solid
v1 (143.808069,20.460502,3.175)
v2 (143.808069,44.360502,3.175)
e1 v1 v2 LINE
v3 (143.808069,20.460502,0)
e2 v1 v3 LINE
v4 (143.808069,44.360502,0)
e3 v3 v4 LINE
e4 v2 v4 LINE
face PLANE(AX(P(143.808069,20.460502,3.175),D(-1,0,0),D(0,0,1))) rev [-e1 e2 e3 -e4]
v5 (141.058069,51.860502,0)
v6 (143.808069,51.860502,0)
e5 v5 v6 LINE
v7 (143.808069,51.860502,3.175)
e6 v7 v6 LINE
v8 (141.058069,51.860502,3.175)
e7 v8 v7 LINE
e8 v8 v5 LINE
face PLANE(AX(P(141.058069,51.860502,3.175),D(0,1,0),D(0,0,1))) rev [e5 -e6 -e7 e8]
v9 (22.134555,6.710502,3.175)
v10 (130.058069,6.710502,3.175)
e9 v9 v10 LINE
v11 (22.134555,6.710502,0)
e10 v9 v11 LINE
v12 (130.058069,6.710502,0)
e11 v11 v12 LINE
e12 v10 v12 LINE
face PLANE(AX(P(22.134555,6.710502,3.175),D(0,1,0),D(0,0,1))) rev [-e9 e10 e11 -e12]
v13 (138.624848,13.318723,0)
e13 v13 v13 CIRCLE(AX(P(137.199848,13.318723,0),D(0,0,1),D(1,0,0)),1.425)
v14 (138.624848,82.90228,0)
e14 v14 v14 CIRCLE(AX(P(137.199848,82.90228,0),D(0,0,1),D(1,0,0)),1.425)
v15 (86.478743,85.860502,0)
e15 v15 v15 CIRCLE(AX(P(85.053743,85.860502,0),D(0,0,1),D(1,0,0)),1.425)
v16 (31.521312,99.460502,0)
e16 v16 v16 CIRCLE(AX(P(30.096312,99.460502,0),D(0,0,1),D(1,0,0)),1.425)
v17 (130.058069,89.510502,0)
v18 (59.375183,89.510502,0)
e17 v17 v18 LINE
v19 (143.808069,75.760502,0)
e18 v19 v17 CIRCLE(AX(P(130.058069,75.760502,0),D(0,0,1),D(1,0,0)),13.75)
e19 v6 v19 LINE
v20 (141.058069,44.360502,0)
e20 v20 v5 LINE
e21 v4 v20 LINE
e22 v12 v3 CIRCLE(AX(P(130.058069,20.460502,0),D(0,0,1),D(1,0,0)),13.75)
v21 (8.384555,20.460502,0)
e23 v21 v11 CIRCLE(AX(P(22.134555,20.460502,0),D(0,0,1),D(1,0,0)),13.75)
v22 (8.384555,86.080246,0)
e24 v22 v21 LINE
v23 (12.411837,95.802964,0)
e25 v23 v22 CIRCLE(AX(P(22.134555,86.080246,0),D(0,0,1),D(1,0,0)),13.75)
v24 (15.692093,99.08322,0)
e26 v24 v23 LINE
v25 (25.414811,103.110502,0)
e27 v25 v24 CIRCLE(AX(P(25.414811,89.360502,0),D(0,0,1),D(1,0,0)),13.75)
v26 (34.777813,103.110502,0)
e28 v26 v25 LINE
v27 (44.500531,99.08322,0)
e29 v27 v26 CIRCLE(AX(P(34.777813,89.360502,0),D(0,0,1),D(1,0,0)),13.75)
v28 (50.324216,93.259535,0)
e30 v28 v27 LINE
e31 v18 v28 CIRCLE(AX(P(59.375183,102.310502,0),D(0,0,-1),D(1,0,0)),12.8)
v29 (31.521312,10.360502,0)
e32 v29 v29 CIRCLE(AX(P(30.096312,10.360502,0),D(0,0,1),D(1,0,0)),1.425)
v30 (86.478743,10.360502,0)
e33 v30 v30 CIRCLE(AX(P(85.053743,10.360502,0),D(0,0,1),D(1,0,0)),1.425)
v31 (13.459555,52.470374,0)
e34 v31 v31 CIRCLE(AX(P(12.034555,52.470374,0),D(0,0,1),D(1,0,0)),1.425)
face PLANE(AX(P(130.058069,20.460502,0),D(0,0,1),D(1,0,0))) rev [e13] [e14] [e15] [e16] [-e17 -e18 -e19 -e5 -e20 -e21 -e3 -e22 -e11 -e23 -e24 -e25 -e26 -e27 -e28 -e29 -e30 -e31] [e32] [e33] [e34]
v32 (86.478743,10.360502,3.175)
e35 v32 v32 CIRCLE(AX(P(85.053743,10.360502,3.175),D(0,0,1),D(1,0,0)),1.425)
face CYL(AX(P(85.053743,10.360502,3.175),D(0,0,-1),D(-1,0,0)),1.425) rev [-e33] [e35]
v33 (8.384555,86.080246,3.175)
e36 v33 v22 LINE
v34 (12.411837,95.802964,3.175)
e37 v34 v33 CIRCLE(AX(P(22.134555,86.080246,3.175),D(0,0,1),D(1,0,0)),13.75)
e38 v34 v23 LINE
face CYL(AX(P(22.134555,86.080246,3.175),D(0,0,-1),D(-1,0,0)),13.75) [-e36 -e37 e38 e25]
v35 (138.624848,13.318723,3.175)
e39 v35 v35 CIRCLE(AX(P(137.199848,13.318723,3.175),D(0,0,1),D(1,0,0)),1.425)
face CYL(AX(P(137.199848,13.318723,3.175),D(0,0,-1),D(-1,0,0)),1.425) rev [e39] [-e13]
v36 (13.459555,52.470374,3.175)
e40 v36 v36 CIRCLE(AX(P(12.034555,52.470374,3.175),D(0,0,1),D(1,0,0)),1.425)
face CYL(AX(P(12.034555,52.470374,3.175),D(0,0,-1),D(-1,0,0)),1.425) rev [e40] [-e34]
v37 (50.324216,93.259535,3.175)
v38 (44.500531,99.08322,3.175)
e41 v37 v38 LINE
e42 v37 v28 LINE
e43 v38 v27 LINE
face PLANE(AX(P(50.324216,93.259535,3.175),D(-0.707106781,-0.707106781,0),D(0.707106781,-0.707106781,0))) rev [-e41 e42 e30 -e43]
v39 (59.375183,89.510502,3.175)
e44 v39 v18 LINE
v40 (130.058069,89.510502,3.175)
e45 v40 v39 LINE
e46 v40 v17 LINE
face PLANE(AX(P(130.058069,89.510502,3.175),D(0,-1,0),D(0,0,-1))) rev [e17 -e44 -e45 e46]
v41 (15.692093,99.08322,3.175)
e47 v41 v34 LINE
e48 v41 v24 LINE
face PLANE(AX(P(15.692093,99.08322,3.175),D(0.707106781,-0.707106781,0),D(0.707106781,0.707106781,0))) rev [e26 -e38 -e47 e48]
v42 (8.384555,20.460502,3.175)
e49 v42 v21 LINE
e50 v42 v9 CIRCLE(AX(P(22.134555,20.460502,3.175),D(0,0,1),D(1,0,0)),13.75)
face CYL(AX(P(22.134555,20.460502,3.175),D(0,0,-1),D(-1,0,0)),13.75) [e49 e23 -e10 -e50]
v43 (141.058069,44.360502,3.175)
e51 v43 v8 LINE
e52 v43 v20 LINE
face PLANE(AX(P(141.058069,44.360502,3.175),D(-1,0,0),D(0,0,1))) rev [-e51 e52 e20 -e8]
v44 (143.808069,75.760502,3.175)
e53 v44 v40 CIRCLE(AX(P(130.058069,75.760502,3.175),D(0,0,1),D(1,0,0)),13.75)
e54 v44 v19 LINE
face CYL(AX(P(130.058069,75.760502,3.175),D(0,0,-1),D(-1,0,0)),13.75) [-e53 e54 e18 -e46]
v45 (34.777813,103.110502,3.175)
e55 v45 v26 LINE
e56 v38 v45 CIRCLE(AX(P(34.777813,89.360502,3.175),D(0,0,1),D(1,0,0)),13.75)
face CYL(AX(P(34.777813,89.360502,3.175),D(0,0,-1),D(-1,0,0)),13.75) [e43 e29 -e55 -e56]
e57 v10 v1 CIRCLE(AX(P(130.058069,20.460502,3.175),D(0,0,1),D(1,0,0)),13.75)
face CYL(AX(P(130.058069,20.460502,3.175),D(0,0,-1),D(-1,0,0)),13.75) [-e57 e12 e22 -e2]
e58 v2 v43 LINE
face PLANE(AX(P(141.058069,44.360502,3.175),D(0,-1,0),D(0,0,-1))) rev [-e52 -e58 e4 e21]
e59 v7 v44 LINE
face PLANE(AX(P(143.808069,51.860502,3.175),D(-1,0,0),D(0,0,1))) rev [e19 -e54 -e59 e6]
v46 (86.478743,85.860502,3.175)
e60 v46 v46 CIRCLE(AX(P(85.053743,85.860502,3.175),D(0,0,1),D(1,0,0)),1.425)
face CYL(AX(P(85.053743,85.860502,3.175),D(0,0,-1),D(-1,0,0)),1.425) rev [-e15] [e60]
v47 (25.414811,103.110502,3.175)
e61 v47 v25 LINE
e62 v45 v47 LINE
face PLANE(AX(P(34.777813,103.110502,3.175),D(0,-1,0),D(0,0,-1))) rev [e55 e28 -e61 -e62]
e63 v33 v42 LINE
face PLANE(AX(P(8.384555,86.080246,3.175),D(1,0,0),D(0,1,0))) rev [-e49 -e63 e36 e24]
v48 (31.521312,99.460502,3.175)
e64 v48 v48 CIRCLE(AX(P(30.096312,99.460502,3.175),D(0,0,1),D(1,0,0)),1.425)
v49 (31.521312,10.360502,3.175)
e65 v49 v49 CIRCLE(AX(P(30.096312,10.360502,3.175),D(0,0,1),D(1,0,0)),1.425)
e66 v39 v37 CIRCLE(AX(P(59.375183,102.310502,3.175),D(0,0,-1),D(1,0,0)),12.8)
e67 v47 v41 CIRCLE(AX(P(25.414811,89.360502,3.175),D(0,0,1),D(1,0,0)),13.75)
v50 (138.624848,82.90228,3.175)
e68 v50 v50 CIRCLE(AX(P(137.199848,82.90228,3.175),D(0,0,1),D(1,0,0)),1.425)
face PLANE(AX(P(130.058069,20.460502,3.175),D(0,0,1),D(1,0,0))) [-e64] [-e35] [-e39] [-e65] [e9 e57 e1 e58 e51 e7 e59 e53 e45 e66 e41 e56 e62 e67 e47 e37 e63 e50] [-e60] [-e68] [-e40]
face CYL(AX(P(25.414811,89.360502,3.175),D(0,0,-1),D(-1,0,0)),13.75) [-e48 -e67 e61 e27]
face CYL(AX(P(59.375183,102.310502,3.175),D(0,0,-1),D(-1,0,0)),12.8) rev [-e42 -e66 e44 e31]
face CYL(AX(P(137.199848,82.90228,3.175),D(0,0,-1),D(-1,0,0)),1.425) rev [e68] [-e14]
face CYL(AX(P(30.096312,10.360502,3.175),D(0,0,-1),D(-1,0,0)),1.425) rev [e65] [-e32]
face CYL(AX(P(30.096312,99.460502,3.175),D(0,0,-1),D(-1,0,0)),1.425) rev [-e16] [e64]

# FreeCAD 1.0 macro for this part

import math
import FreeCAD as App
import Part
import Sketcher
from FreeCAD import Vector
Q = App.Units.Quantity

doc = App.newDocument("Part")
body = doc.addObject("PartDesign::Body", "Body")

sketch1 = body.newObject("Sketcher::SketchObject", "Sketch")
sketch1.AttachmentSupport = (doc.getObject("XY_Plane"), [""])
sketch1.MapMode = "FlatFace"
sketch1.addGeometry([
    Part.LineSegment(Vector(143.808069, 20.460502, 0), Vector(143.808069, 44.360502, 0)),
    Part.LineSegment(Vector(143.808069, 44.360502, 0), Vector(141.058069, 44.360502, 0)),
    Part.LineSegment(Vector(141.058069, 44.360502, 0), Vector(141.058069, 51.860502, 0)),
    Part.LineSegment(Vector(141.058069, 51.860502, 0), Vector(143.808069, 51.860502, 0)),
    Part.LineSegment(Vector(143.808069, 51.860502, 0), Vector(143.808069, 75.760502, 0)),
    Part.ArcOfCircle(Part.Circle(Vector(130.058069, 75.760502, 0), Vector(0, 0, 1), 13.75), math.radians(0), math.radians(90)),
    Part.LineSegment(Vector(130.058069, 89.510502, 0), Vector(59.375183, 89.510502, 0)),
    Part.ArcOfCircle(Part.Circle(Vector(59.375183, 102.310502, 0), Vector(0, 0, 1), 12.8), math.radians(-135), math.radians(-90)),
    Part.LineSegment(Vector(50.324216, 93.259535, 0), Vector(44.500531, 99.08322, 0)),
    Part.ArcOfCircle(Part.Circle(Vector(34.777813, 89.360502, 0), Vector(0, 0, 1), 13.75), math.radians(45), math.radians(90)),
    Part.LineSegment(Vector(34.777813, 103.110502, 0), Vector(25.414811, 103.110502, 0)),
    Part.ArcOfCircle(Part.Circle(Vector(25.414811, 89.360502, 0), Vector(0, 0, 1), 13.75), math.radians(90), math.radians(135)),
    Part.LineSegment(Vector(15.692093, 99.08322, 0), Vector(12.411837, 95.802964, 0)),
    Part.ArcOfCircle(Part.Circle(Vector(22.134555, 86.080246, 0), Vector(0, 0, 1), 13.75), math.radians(135), math.radians(180)),
    Part.LineSegment(Vector(8.384555, 86.080246, 0), Vector(8.384555, 20.460502, 0)),
    Part.ArcOfCircle(Part.Circle(Vector(22.134555, 20.460502, 0), Vector(0, 0, 1), 13.75), math.radians(180), math.radians(270)),
    Part.LineSegment(Vector(22.134555, 6.710502, 0), Vector(130.058069, 6.710502, 0)),
    Part.ArcOfCircle(Part.Circle(Vector(130.058069, 20.460502, 0), Vector(0, 0, 1), 13.75), math.radians(-90), math.radians(0)),
    Part.Circle(Vector(30.096312, 10.360502, 0), Vector(0, 0, 1), 1.425),
    Part.Circle(Vector(12.034555, 52.470374, 0), Vector(0, 0, 1), 1.425),
    Part.Circle(Vector(85.053743, 10.360502, 0), Vector(0, 0, 1), 1.425),
    Part.Circle(Vector(137.199848, 13.318723, 0), Vector(0, 0, 1), 1.425),
    Part.Circle(Vector(30.096312, 99.460502, 0), Vector(0, 0, 1), 1.425),
    Part.Circle(Vector(85.053743, 85.860502, 0), Vector(0, 0, 1), 1.425),
    Part.Circle(Vector(137.199848, 82.90228, 0), Vector(0, 0, 1), 1.425),
], False)
sketch1.addConstraint([
    Sketcher.Constraint("Coincident", 0, 2, 1, 1),
    Sketcher.Constraint("Coincident", 1, 2, 2, 1),
    Sketcher.Constraint("Coincident", 2, 2, 3, 1),
    Sketcher.Constraint("Coincident", 3, 2, 4, 1),
    Sketcher.Constraint("Tangent", 4, 2, 5, 1),
    Sketcher.Constraint("Tangent", 5, 2, 6, 1),
    Sketcher.Constraint("Tangent", 6, 2, 7, 2),
    Sketcher.Constraint("Tangent", 7, 1, 8, 1),
    Sketcher.Constraint("Tangent", 8, 2, 9, 1),
    Sketcher.Constraint("Tangent", 9, 2, 10, 1),
    Sketcher.Constraint("Tangent", 10, 2, 11, 1),
    Sketcher.Constraint("Tangent", 11, 2, 12, 1),
    Sketcher.Constraint("Tangent", 12, 2, 13, 1),
    Sketcher.Constraint("Tangent", 13, 2, 14, 1),
    Sketcher.Constraint("Tangent", 14, 2, 15, 1),
    Sketcher.Constraint("Tangent", 15, 2, 16, 1),
    Sketcher.Constraint("Tangent", 16, 2, 17, 1),
    Sketcher.Constraint("Tangent", 17, 2, 0, 1),
    Sketcher.Constraint("Vertical", 0),
    Sketcher.Constraint("Horizontal", 1),
    Sketcher.Constraint("Vertical", 2),
    Sketcher.Constraint("Horizontal", 3),
    Sketcher.Constraint("Vertical", 4),
    Sketcher.Constraint("Horizontal", 6),
    Sketcher.Constraint("Horizontal", 10),
    Sketcher.Constraint("Vertical", 14),
    Sketcher.Constraint("Horizontal", 16),
    Sketcher.Constraint("Equal", 5, 9),
    Sketcher.Constraint("Equal", 9, 11),
    Sketcher.Constraint("Equal", 11, 13),
    Sketcher.Constraint("Equal", 13, 15),
    Sketcher.Constraint("Equal", 15, 17),
    Sketcher.Constraint("Equal", 18, 19),
    Sketcher.Constraint("Equal", 19, 20),
    Sketcher.Constraint("Equal", 20, 21),
    Sketcher.Constraint("Equal", 21, 22),
    Sketcher.Constraint("Equal", 22, 23),
    Sketcher.Constraint("Equal", 23, 24),
    Sketcher.Constraint("Perpendicular", 8, 12),
    Sketcher.Constraint("Horizontal", 18, 3, 20, 3),
    Sketcher.Constraint("Horizontal", 8, 2, 11, 2),
    Sketcher.Constraint("Vertical", 5, 3, 17, 3),
    Sketcher.Constraint("Vertical", 18, 3, 22, 3),
    Sketcher.Constraint("Vertical", 20, 3, 23, 3),
    Sketcher.Constraint("Vertical", 21, 3, 24, 3),
    Sketcher.Constraint("Equal", 0, 4),
    Sketcher.Constraint("Radius", 7, Q("12.8 mm")),
    Sketcher.Constraint("Diameter", 18, Q("2.85 mm")),
    Sketcher.Constraint("Radius", 5, Q("13.75 mm")),
    Sketcher.Constraint("DistanceY", 0, 1, 0, 2, Q("23.9 mm")),
    Sketcher.Constraint("DistanceY", 2, 1, 2, 2, Q("7.5 mm")),
    Sketcher.Constraint("DistanceY", 18, 3, 9, 3, Q("79 mm")),
    Sketcher.Constraint("DistanceY", 20, 3, 0, 2, Q("34 mm")),
    Sketcher.Constraint("DistanceX", 17, 3, 1, 2, Q("11 mm")),
    Sketcher.Constraint("DistanceX", 19, 3, 15, 3, Q("10.1 mm")),
    Sketcher.Constraint("DistanceY", 9, 3, 22, 3, Q("10.1 mm")),
    Sketcher.Constraint("DistanceY", 5, 3, 23, 3, Q("10.1 mm")),
    Sketcher.Constraint("DistanceY", -1, 1, 5, 3, Q("75.760502 mm")),
    Sketcher.Constraint("DistanceX", 18, 3, 9, 3, Q("4.681501 mm")),
    Sketcher.Constraint("DistanceX", 11, 3, 18, 3, Q("4.681501 mm")),
    Sketcher.Constraint("DistanceX", 6, 2, 6, 1, Q("70.682886 mm")),
    Sketcher.Constraint("DistanceX", 16, 1, 16, 2, Q("107.923514 mm")),
    Sketcher.Constraint("DistanceX", -1, 1, 5, 3, Q("130.058069 mm")),
    Sketcher.Constraint("DistanceY", -1, 1, 24, 3, Q("82.90228 mm")),
    Sketcher.Constraint("DistanceY", 15, 3, 19, 3, Q("32.009872 mm")),
    Sketcher.Constraint("DistanceX", 18, 3, 20, 3, Q("54.957431 mm")),
    Sketcher.Constraint("DistanceX", 17, 3, 21, 3, Q("7.141778 mm")),
    Sketcher.Constraint("DistanceY", 21, 3, 17, 3, Q("7.141778 mm")),
])
pad1 = body.newObject("PartDesign::Pad", "Pad")
pad1.Profile = sketch1
pad1.Length = 3.175

doc.recompute()
